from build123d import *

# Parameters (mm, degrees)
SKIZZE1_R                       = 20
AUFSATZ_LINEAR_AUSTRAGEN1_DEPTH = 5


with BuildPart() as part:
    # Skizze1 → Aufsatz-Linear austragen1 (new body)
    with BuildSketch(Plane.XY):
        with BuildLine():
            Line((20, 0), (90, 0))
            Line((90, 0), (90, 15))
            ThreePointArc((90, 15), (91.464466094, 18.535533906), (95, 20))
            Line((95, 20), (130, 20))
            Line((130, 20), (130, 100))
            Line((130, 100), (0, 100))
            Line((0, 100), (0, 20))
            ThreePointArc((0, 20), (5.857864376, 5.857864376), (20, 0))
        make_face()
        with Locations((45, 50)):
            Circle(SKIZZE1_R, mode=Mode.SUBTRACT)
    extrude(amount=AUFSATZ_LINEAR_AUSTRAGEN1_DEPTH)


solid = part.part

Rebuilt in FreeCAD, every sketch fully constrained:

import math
import FreeCAD as App
import Part
import Sketcher

V = App.Vector

doc = App.newDocument("Part")
params = doc.addObject("Spreadsheet::Sheet", "Params")
for row, (alias, value) in enumerate([
    ("sketch1_diameter", "40 mm"),
    ("sketch1_radius", "5 mm"),
    ("sketch1_width", "70 mm"),
    ("sketch1_width2", "35 mm"),
    ("sketch1_height", "80 mm"),
    ("pad1_length", "5 mm"),
], start=1):
    params.set(f"A{row}", alias)
    params.set(f"B{row}", "=" + value)
    params.setAlias(f"B{row}", alias)

body = doc.addObject("PartDesign::Body", "Body")

# Sketch on XY plane
sketch1 = body.newObject("Sketcher::SketchObject", "Sketch")
sketch1.AttachmentSupport = (doc.getObject("XY_Plane"), [""])
sketch1.MapMode = "FlatFace"
sketch1.addGeometry(Part.LineSegment(V(20, 0, 0), V(90, 0, 0)), False)
sketch1.addGeometry(Part.LineSegment(V(90, 0, 0), V(90, 15, 0)), False)
sketch1.addGeometry(Part.ArcOfCircle(Part.Circle(V(95, 15, 0), V(0, 0, 1), 5), math.radians(90), math.radians(180)), False)
sketch1.addGeometry(Part.LineSegment(V(95, 20, 0), V(130, 20, 0)), False)
sketch1.addGeometry(Part.LineSegment(V(130, 20, 0), V(130, 100, 0)), False)
sketch1.addGeometry(Part.LineSegment(V(130, 100, 0), V(0, 100, 0)), False)
sketch1.addGeometry(Part.LineSegment(V(0, 100, 0), V(0, 20, 0)), False)
sketch1.addGeometry(Part.ArcOfCircle(Part.Circle(V(20, 20, 0), V(0, 0, 1), 20), math.radians(180), math.radians(270)), False)
sketch1.addGeometry(Part.Circle(V(45, 50, 0), V(0, 0, 1), 20), False)
sketch1.addConstraint(Sketcher.Constraint("Coincident", 0, 2, 1, 1))
sketch1.addConstraint(Sketcher.Constraint("Tangent", 1, 2, 2, 2))
sketch1.addConstraint(Sketcher.Constraint("Tangent", 2, 1, 3, 1))
sketch1.addConstraint(Sketcher.Constraint("Coincident", 3, 2, 4, 1))
sketch1.addConstraint(Sketcher.Constraint("Coincident", 4, 2, 5, 1))
sketch1.addConstraint(Sketcher.Constraint("Coincident", 5, 2, 6, 1))
sketch1.addConstraint(Sketcher.Constraint("Tangent", 6, 2, 7, 1))
sketch1.addConstraint(Sketcher.Constraint("Tangent", 7, 2, 0, 1))
sketch1.addConstraint(Sketcher.Constraint("Horizontal", 0))
sketch1.addConstraint(Sketcher.Constraint("Vertical", 1))
sketch1.addConstraint(Sketcher.Constraint("Horizontal", 3))
sketch1.addConstraint(Sketcher.Constraint("Vertical", 4))
sketch1.addConstraint(Sketcher.Constraint("Horizontal", 5))
sketch1.addConstraint(Sketcher.Constraint("Vertical", 6))
sketch1.addConstraint(Sketcher.Constraint("Equal", 7, 8))
sketch1.addConstraint(Sketcher.Constraint("PointOnObject", 0, 2, -1))
sketch1.addConstraint(Sketcher.Constraint("PointOnObject", 5, 2, -2))
sketch1.addConstraint(Sketcher.Constraint("Horizontal", 7, 3, 2, 1))
sketch1.addConstraint(Sketcher.Constraint("Diameter", 8, 40.0))
sketch1.addConstraint(Sketcher.Constraint("Radius", 2, 5.0))
sketch1.addConstraint(Sketcher.Constraint("DistanceX", 0, 1, 0, 2, 70.0))
sketch1.addConstraint(Sketcher.Constraint("DistanceX", 3, 1, 3, 2, 35.0))
sketch1.addConstraint(Sketcher.Constraint("DistanceY", 4, 1, 4, 2, 80.0))
sketch1.addConstraint(Sketcher.Constraint("DistanceX", -1, 1, 8, 3, 45.0))
sketch1.addConstraint(Sketcher.Constraint("DistanceY", -1, 1, 8, 3, 50.0))
sketch1.setExpression("Constraints[18]", "Params.sketch1_diameter")
sketch1.setExpression("Constraints[19]", "Params.sketch1_radius")
sketch1.setExpression("Constraints[20]", "Params.sketch1_width")
sketch1.setExpression("Constraints[21]", "Params.sketch1_width2")
sketch1.setExpression("Constraints[22]", "Params.sketch1_height")
pad1 = body.newObject("PartDesign::Pad", "Pad")
pad1.Profile = sketch1
pad1.setExpression("Length", "Params.pad1_length")

doc.recompute()
